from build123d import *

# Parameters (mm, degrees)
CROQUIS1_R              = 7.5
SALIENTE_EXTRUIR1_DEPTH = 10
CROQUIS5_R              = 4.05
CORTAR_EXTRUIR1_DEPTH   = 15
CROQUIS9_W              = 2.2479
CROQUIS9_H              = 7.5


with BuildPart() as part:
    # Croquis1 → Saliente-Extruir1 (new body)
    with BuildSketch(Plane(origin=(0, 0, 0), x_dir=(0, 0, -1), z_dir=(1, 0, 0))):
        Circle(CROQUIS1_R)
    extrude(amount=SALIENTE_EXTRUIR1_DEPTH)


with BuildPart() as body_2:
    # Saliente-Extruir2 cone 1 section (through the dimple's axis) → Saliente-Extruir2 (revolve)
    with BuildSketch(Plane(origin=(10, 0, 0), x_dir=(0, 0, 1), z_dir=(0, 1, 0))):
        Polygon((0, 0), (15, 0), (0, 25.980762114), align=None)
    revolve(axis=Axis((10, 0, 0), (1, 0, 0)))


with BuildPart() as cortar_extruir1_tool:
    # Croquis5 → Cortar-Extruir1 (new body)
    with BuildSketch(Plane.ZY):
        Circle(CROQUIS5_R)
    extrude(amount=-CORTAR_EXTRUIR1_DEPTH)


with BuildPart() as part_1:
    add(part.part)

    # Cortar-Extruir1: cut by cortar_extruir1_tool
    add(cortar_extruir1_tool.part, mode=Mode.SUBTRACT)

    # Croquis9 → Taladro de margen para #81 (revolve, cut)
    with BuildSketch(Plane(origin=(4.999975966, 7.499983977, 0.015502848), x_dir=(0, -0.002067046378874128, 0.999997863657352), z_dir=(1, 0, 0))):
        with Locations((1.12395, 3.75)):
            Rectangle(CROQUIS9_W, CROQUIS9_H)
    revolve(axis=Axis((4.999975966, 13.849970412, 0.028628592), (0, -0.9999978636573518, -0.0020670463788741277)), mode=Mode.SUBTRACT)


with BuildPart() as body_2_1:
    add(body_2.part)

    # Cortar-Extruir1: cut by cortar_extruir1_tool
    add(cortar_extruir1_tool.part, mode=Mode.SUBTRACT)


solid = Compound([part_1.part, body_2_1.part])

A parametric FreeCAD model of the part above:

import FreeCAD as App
import Part
import Sketcher
from FreeCAD import Vector
Q = App.Units.Quantity

doc = App.newDocument("Part")
body = doc.addObject("PartDesign::Body", "Body")

# Sketch on YZ plane
sketch1 = body.newObject("Sketcher::SketchObject", "Sketch")
sketch1.AttachmentSupport = (doc.getObject("YZ_Plane"), [""])
sketch1.MapMode = "FlatFace"
sketch1.addGeometry(Part.Circle(Vector(0, 0, 0), Vector(0, 0, 1), 8), False)
sketch1.addConstraint([
    Sketcher.Constraint("Coincident", 0, 3, -1, 1),
    Sketcher.Constraint("Diameter", 0, Q("15 mm")),
])
pad1 = body.newObject("PartDesign::Pad", "Pad")
pad1.Profile = sketch1
pad1.Length = 10
body2 = doc.addObject("PartDesign::Body", "Body001")

# Sketch on XZ plane
sketch2 = body2.newObject("Sketcher::SketchObject", "Sketch001")
sketch2.AttachmentSupport = (doc.getObject("XZ_Plane001"), [""])
sketch2.MapMode = "FlatFace"
sketch2.addGeometry([
    Part.LineSegment(Vector(10, 0, 0), Vector(10, 15, 0)),
    Part.LineSegment(Vector(10, 15, 0), Vector(36, 0, 0)),
    Part.LineSegment(Vector(36, 0, 0), Vector(10, 0, 0)),
], False)
sketch2.addConstraint([
    Sketcher.Constraint("Coincident", 0, 2, 1, 1),
    Sketcher.Constraint("Coincident", 1, 2, 2, 1),
    Sketcher.Constraint("Coincident", 2, 2, 0, 1),
    Sketcher.Constraint("Vertical", 0),
    Sketcher.Constraint("Horizontal", 2),
    Sketcher.Constraint("PointOnObject", 1, 2, -1),
    Sketcher.Constraint("DistanceY", 0, 1, 0, 2, Q("15 mm")),
    Sketcher.Constraint("Angle", 1, Q("-30 deg")),
    Sketcher.Constraint("DistanceX", -1, 1, 0, 2, Q("10 mm")),
])
revolution = body2.newObject("PartDesign::Revolution", "Revolution")
revolution.Profile = sketch2
revolution.ReferenceAxis = (sketch2, ["H_Axis"])
revolution.Angle = 360
body3 = doc.addObject("PartDesign::Body", "Body002")

# Sketch on YZ plane
sketch3 = body3.newObject("Sketcher::SketchObject", "Sketch002")
sketch3.AttachmentSupport = (doc.getObject("YZ_Plane002"), [""])
sketch3.MapMode = "FlatFace"
sketch3.addGeometry(Part.Circle(Vector(0, 0, 0), Vector(0, 0, 1), 4), False)
sketch3.addConstraint([
    Sketcher.Constraint("Coincident", 0, 3, -1, 1),
    Sketcher.Constraint("Diameter", 0, Q("8.1 mm")),
])
pad2 = body3.newObject("PartDesign::Pad", "Pad001")
pad2.Profile = sketch3
pad2.Length = 15
doc.recompute()

body4 = doc.addObject("PartDesign::Body", "Body003")
body4.BaseFeature = body3
boolean = body.newObject("PartDesign::Boolean", "Boolean")
boolean.Type = "Cut"
boolean.addObjects([body4])
doc.recompute()

# Sketch on YZ plane
sketch4 = body.newObject("Sketcher::SketchObject", "Sketch003")
sketch4.AttachmentSupport = (doc.getObject("YZ_Plane"), [""])
sketch4.MapMode = "FlatFace"
sketch4.AttachmentOffset = App.Placement(Vector(0, 0, 4.999976), App.Rotation())
sketch4.addGeometry([
    Part.LineSegment(Vector(0, 0, 0), Vector(7.5, 0, 0)),
    Part.LineSegment(Vector(7.5, 0, 0), Vector(7.5, 2.3, 0)),
    Part.LineSegment(Vector(7.5, 2.3, 0), Vector(0, 2.2, 0)),
    Part.LineSegment(Vector(0, 2.2, 0), Vector(0, 0, 0)),
], False)
sketch4.addGeometry(Part.LineSegment(Vector(7.5, 0, 0), Vector(0, 0, 0)), True)  # axis
sketch4.addConstraint([
    Sketcher.Constraint("Coincident", 0, 2, 1, 1),
    Sketcher.Constraint("Coincident", 1, 2, 2, 1),
    Sketcher.Constraint("Coincident", 2, 2, 3, 1),
    Sketcher.Constraint("Coincident", 3, 2, 0, 1),
    Sketcher.Constraint("Coincident", 3, 2, -1, 1),
    Sketcher.Constraint("Coincident", 4, 2, -1, 1),
    Sketcher.Constraint("Coincident", 4, 1, 0, 2),
    Sketcher.Constraint("Perpendicular", 0, 1),
    Sketcher.Constraint("Perpendicular", 1, 2),
    Sketcher.Constraint("Perpendicular", 2, 3),
    Sketcher.Constraint("Distance", 0, Q("7.5 mm")),
    Sketcher.Constraint("Distance", 1, Q("2.2479 mm")),
    Sketcher.Constraint("DistanceY", -1, 1, 1, 2, Q("2.263398 mm")),
])
groove = body.newObject("PartDesign::Groove", "Groove")
groove.Profile = sketch4
groove.ReferenceAxis = (sketch4, ["Axis0"])
groove.Angle = 360
doc.recompute()

boolean2 = body2.newObject("PartDesign::Boolean", "Boolean001")
boolean2.Type = "Cut"
boolean2.addObjects([body3])

doc.recompute()
